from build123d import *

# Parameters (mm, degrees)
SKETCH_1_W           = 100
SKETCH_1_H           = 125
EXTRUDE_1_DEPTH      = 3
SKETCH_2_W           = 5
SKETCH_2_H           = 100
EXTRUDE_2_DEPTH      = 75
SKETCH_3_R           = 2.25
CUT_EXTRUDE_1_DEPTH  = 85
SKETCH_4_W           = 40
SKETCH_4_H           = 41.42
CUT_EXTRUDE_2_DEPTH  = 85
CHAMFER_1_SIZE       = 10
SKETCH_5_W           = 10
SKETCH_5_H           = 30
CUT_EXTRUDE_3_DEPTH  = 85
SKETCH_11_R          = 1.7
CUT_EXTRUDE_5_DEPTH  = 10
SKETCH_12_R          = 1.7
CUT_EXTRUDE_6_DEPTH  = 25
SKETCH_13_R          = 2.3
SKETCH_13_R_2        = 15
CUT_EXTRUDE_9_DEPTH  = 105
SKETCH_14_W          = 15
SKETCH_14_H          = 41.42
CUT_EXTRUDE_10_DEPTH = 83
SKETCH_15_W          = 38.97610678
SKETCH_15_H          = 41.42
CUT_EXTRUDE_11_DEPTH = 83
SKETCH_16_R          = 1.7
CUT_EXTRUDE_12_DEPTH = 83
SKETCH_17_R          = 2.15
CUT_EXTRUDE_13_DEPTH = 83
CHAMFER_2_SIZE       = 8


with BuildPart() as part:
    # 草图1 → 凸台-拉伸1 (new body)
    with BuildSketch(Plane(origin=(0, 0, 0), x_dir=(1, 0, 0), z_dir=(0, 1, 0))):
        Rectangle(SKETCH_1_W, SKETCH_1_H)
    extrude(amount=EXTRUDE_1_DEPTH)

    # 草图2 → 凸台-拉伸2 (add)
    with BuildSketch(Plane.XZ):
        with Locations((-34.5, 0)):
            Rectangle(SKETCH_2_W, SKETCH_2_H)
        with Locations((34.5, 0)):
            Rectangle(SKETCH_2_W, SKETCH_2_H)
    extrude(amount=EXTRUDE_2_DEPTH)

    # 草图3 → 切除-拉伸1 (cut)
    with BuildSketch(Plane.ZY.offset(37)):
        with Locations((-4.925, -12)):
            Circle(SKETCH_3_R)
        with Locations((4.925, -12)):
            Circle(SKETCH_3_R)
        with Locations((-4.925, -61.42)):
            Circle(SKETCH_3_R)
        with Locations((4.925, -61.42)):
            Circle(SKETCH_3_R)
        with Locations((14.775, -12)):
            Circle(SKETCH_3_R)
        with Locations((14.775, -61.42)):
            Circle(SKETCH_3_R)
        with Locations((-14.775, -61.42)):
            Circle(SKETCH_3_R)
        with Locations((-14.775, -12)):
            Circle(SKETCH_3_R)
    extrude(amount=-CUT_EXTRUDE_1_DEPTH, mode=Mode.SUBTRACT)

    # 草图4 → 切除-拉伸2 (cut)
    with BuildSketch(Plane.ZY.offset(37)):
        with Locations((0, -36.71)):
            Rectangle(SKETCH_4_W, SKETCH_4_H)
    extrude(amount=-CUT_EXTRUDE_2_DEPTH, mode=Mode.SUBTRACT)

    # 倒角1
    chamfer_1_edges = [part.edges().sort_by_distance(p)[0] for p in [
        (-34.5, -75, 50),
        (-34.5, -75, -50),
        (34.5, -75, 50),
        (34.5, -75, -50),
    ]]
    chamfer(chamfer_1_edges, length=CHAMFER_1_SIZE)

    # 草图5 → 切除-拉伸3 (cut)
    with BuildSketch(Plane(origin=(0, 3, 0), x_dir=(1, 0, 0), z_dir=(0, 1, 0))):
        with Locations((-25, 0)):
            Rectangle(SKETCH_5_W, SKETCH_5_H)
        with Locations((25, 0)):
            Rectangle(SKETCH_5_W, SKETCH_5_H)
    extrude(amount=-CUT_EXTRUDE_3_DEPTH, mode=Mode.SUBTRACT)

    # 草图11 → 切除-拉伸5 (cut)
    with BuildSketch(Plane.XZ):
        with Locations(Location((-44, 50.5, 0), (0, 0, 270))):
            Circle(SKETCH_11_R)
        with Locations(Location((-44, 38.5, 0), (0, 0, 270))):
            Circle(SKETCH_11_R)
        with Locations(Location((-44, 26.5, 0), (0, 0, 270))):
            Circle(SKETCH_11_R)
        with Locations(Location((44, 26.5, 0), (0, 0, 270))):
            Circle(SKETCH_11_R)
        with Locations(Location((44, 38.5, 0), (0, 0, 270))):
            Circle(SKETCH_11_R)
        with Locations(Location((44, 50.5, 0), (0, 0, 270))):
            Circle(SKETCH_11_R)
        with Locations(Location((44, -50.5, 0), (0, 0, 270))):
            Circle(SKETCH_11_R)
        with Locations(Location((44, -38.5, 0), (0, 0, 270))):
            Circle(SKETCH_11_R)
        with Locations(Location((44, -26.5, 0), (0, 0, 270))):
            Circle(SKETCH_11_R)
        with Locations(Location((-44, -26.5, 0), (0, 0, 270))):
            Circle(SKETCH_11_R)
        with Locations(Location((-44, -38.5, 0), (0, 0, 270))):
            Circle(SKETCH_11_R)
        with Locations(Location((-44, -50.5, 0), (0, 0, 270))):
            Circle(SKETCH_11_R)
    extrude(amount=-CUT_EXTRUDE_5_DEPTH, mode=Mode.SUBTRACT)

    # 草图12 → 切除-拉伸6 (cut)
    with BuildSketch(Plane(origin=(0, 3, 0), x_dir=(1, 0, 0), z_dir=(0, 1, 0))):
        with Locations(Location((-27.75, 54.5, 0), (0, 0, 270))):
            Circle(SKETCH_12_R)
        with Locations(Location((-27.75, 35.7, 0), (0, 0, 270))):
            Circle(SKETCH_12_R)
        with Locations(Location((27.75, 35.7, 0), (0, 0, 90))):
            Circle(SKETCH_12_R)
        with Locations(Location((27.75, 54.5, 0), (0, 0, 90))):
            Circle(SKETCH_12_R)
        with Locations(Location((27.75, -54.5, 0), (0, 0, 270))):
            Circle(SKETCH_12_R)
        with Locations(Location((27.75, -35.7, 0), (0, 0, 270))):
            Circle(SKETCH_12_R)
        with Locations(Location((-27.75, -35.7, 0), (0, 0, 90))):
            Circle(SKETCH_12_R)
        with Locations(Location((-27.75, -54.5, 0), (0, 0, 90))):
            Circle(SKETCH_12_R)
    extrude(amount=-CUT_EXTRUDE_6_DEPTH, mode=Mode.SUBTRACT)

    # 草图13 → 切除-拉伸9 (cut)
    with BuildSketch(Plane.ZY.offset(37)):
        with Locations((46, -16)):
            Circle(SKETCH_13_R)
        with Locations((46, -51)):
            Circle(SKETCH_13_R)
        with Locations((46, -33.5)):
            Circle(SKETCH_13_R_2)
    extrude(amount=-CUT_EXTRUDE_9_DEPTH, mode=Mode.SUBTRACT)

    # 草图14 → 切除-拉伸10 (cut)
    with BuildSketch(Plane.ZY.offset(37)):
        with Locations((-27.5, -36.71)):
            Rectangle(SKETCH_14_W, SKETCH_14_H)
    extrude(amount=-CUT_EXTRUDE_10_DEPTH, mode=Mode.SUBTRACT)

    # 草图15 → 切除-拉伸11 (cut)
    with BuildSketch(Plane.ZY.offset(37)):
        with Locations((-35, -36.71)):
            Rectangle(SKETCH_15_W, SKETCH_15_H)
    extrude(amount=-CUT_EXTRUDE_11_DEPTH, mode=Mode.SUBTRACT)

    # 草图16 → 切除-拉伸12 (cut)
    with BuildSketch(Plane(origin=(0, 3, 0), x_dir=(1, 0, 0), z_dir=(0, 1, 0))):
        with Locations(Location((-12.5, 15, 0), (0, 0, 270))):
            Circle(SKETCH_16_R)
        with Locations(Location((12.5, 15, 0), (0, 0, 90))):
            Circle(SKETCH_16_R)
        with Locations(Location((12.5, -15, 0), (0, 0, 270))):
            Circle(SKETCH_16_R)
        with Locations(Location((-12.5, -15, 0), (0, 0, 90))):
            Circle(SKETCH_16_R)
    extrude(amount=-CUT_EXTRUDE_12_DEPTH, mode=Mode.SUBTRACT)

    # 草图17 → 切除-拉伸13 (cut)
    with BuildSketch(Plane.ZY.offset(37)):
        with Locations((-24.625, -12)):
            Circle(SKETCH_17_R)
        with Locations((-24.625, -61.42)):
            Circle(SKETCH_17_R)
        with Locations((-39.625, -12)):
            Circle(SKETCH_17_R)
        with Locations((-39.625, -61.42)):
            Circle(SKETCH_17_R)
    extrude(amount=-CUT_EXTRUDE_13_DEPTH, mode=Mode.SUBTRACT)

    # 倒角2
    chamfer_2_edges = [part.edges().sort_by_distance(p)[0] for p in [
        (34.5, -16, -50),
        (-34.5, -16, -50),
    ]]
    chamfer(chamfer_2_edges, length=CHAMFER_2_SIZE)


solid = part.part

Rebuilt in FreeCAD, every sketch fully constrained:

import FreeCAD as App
import Part
import Sketcher

V = App.Vector
Q = App.Units.Quantity


def edges_at(feature, points):
    """Names of the edges that pass closest to the given points."""
    edges = feature.Shape.Edges
    near = lambda p: min(range(len(edges)), key=lambda i: edges[i].distToShape(Part.Vertex(*p))[0])
    return sorted({f"Edge{near(p) + 1}" for p in points})

doc = App.newDocument("Part")
params = doc.addObject("Spreadsheet::Sheet", "Params")
for row, (alias, value) in enumerate([
    ("sketch1_width", "100 mm"),
    ("sketch1_height", "125 mm"),
    ("pad1_length", "3 mm"),
    ("sketch2_width", "5 mm"),
    ("sketch2_height", "100 mm"),
    ("pad2_length", "75 mm"),
    ("sketch3_diameter", "4.5 mm"),
    ("pocket1_length", "85 mm"),
    ("sketch4_height", "40 mm"),
    ("sketch4_width", "41.42 mm"),
    ("pocket2_length", "85 mm"),
    ("chamfer_size", "10 mm"),
    ("sketch5_width", "10 mm"),
    ("sketch5_height", "30 mm"),
    ("pocket3_length", "85 mm"),
    ("sketch6_diameter", "3.4 mm"),
    ("pocket4_length", "10 mm"),
    ("sketch7_diameter", "3.4 mm"),
    ("pocket5_length", "25 mm"),
    ("sketch8_diameter", "30 mm"),
    ("sketch8_diameter2", "4.6 mm"),
    ("pocket6_length", "105 mm"),
    ("sketch9_height", "15 mm"),
    ("sketch9_width", "41.42 mm"),
    ("pocket7_length", "83 mm"),
    ("sketch10_width", "41.42 mm"),
    ("pocket8_length", "83 mm"),
    ("sketch11_diameter", "3.4 mm"),
    ("pocket9_length", "83 mm"),
    ("sketch12_diameter", "4.3 mm"),
    ("pocket10_length", "83 mm"),
    ("chamfer2_size", "8 mm"),
], start=1):
    params.set(f"A{row}", alias)
    params.set(f"B{row}", "=" + value)
    params.setAlias(f"B{row}", alias)

body = doc.addObject("PartDesign::Body", "Body")

# Sketch on XZ plane
sketch1 = body.newObject("Sketcher::SketchObject", "Sketch")
sketch1.AttachmentSupport = (doc.getObject("XZ_Plane"), [""])
sketch1.MapMode = "FlatFace"
sketch1.addGeometry([
    Part.LineSegment(V(-50, -62, 0), V(-50, 62, 0)),
    Part.LineSegment(V(-50, 62, 0), V(50, 62, 0)),
    Part.LineSegment(V(50, 62, 0), V(50, -62, 0)),
    Part.LineSegment(V(50, -62, 0), V(-50, -62, 0)),
], False)
sketch1.addConstraint([
    Sketcher.Constraint("Coincident", 0, 2, 1, 1),
    Sketcher.Constraint("Coincident", 1, 2, 2, 1),
    Sketcher.Constraint("Coincident", 2, 2, 3, 1),
    Sketcher.Constraint("Coincident", 3, 2, 0, 1),
    Sketcher.Constraint("Vertical", 0),
    Sketcher.Constraint("Horizontal", 1),
    Sketcher.Constraint("Vertical", 2),
    Sketcher.Constraint("Horizontal", 3),
    Sketcher.Constraint("Symmetric", 0, 2, 2, 2, -1, 1),
    Sketcher.Constraint("DistanceX", 1, 1, 1, 2, Q("100 mm")),
    Sketcher.Constraint("DistanceY", 0, 1, 0, 2, Q("125 mm")),
])
sketch1.setExpression("Constraints[9]", "Params.sketch1_width")
sketch1.setExpression("Constraints[10]", "Params.sketch1_height")
pad1 = body.newObject("PartDesign::Pad", "Pad")
pad1.Profile = sketch1
pad1.setExpression("Length", "Params.pad1_length")
pad1.Reversed = True

# Sketch on XZ plane
sketch2 = body.newObject("Sketcher::SketchObject", "Sketch001")
sketch2.AttachmentSupport = (doc.getObject("XZ_Plane"), [""])
sketch2.MapMode = "FlatFace"
sketch2.addGeometry([
    Part.LineSegment(V(-37, 50, 0), V(-37, -50, 0)),  # 0
    Part.LineSegment(V(-37, -50, 0), V(-32, -50, 0)),  # 1
    Part.LineSegment(V(-32, -50, 0), V(-32, 50, 0)),  # 2
    Part.LineSegment(V(-32, 50, 0), V(-37, 50, 0)),  # 3
    Part.LineSegment(V(32, 50, 0), V(32, -50, 0)),  # 4
    Part.LineSegment(V(32, -50, 0), V(37, -50, 0)),  # 5
    Part.LineSegment(V(37, -50, 0), V(37, 50, 0)),  # 6
    Part.LineSegment(V(37, 50, 0), V(32, 50, 0)),  # 7
], False)
sketch2.addConstraint([
    Sketcher.Constraint("Coincident", 0, 2, 1, 1),
    Sketcher.Constraint("Coincident", 1, 2, 2, 1),
    Sketcher.Constraint("Coincident", 2, 2, 3, 1),
    Sketcher.Constraint("Coincident", 3, 2, 0, 1),
    Sketcher.Constraint("Coincident", 4, 2, 5, 1),
    Sketcher.Constraint("Coincident", 5, 2, 6, 1),
    Sketcher.Constraint("Coincident", 6, 2, 7, 1),
    Sketcher.Constraint("Coincident", 7, 2, 4, 1),
    Sketcher.Constraint("Vertical", 0),
    Sketcher.Constraint("Horizontal", 1),
    Sketcher.Constraint("Vertical", 2),
    Sketcher.Constraint("Horizontal", 3),
    Sketcher.Constraint("Vertical", 4),
    Sketcher.Constraint("Horizontal", 5),
    Sketcher.Constraint("Vertical", 6),
    Sketcher.Constraint("Horizontal", 7),
    Sketcher.Constraint("Symmetric", 2, 2, 4, 2, -1, 1),
    Sketcher.Constraint("Symmetric", 0, 2, 6, 2, -1, 1),
    Sketcher.Constraint("Horizontal", 1, 2, 4, 2),
    Sketcher.Constraint("DistanceX", 1, 1, 1, 2, Q("5 mm")),
    Sketcher.Constraint("DistanceY", 0, 2, 0, 1, Q("100 mm")),
    Sketcher.Constraint("DistanceX", 0, 2, -1, 1, Q("37 mm")),
])
sketch2.setExpression("Constraints[19]", "Params.sketch2_width")
sketch2.setExpression("Constraints[20]", "Params.sketch2_height")
pad2 = body.newObject("PartDesign::Pad", "Pad001")
pad2.Profile = sketch2
pad2.setExpression("Length", "Params.pad2_length")

# Sketch on YZ plane
sketch3 = body.newObject("Sketcher::SketchObject", "Sketch002")
sketch3.AttachmentSupport = (doc.getObject("YZ_Plane"), [""])
sketch3.MapMode = "FlatFace"
sketch3.AttachmentOffset = App.Placement(V(0, 0, -37), App.Rotation())
sketch3.addGeometry([
    Part.Circle(V(-12, -4.9, 0), V(0, 0, 1), 2.2),  # 0
    Part.Circle(V(-12, 4.9, 0), V(0, 0, 1), 2.2),  # 1
    Part.Circle(V(-61.4, -4.9, 0), V(0, 0, 1), 2.2),  # 2
    Part.Circle(V(-61.4, 4.9, 0), V(0, 0, 1), 2.2),  # 3
    Part.Circle(V(-12, 14.8, 0), V(0, 0, 1), 2.2),  # 4
    Part.Circle(V(-61.4, 14.8, 0), V(0, 0, 1), 2.2),  # 5
    Part.Circle(V(-61.4, -14.8, 0), V(0, 0, 1), 2.2),  # 6
    Part.Circle(V(-12, -14.8, 0), V(0, 0, 1), 2.2),  # 7
], False)
sketch3.addConstraint([
    Sketcher.Constraint("Equal", 0, 1),
    Sketcher.Constraint("Equal", 1, 2),
    Sketcher.Constraint("Equal", 2, 3),
    Sketcher.Constraint("Equal", 3, 4),
    Sketcher.Constraint("Equal", 4, 5),
    Sketcher.Constraint("Equal", 5, 6),
    Sketcher.Constraint("Equal", 6, 7),
    Sketcher.Constraint("Symmetric", 0, 3, 1, 3, -1),
    Sketcher.Constraint("Symmetric", 2, 3, 3, 3, -1),
    Sketcher.Constraint("Symmetric", 5, 3, 6, 3, -1),
    Sketcher.Constraint("Symmetric", 4, 3, 7, 3, -1),
    Sketcher.Constraint("Horizontal", 0, 3, 2, 3),
    Sketcher.Constraint("Horizontal", 4, 3, 5, 3),
    Sketcher.Constraint("Vertical", 1, 3, 4, 3),
    Sketcher.Constraint("Vertical", 3, 3, 5, 3),
    Sketcher.Constraint("Diameter", 0, Q("4.5 mm")),
    Sketcher.Constraint("DistanceX", 0, 3, -1, 1, Q("12 mm")),
    Sketcher.Constraint("DistanceY", 0, 3, 4, 3, Q("19.7 mm")),
    Sketcher.Constraint("DistanceX", 2, 3, -1, 1, Q("61.42 mm")),
    Sketcher.Constraint("DistanceY", 0, 3, 1, 3, Q("9.85 mm")),
])
sketch3.setExpression("Constraints[15]", "Params.sketch3_diameter")
pocket1 = body.newObject("PartDesign::Pocket", "Pocket")
pocket1.Profile = sketch3
pocket1.setExpression("Length", "Params.pocket1_length")
pocket1.Reversed = True

# Sketch on YZ plane
sketch4 = body.newObject("Sketcher::SketchObject", "Sketch003")
sketch4.AttachmentSupport = (doc.getObject("YZ_Plane"), [""])
sketch4.MapMode = "FlatFace"
sketch4.AttachmentOffset = App.Placement(V(0, 0, -37), App.Rotation())
sketch4.addGeometry([
    Part.LineSegment(V(-16, -20, 0), V(-57, -20, 0)),
    Part.LineSegment(V(-57, -20, 0), V(-57, 20, 0)),
    Part.LineSegment(V(-57, 20, 0), V(-16, 20, 0)),
    Part.LineSegment(V(-16, 20, 0), V(-16, -20, 0)),
], False)
sketch4.addConstraint([
    Sketcher.Constraint("Coincident", 0, 2, 1, 1),
    Sketcher.Constraint("Coincident", 1, 2, 2, 1),
    Sketcher.Constraint("Coincident", 2, 2, 3, 1),
    Sketcher.Constraint("Coincident", 3, 2, 0, 1),
    Sketcher.Constraint("Horizontal", 0),
    Sketcher.Constraint("Vertical", 1),
    Sketcher.Constraint("Horizontal", 2),
    Sketcher.Constraint("Vertical", 3),
    Sketcher.Constraint("DistanceY", 1, 1, 1, 2, Q("40 mm")),
    Sketcher.Constraint("DistanceY", 0, 2, -1, 1, Q("20 mm")),
    Sketcher.Constraint("DistanceX", 2, 2, -1, 1, Q("16 mm")),
    Sketcher.Constraint("DistanceX", 0, 2, 0, 1, Q("41.42 mm")),
])
sketch4.setExpression("Constraints[8]", "Params.sketch4_height")
sketch4.setExpression("Constraints[11]", "Params.sketch4_width")
pocket2 = body.newObject("PartDesign::Pocket", "Pocket001")
pocket2.Profile = sketch4
pocket2.setExpression("Length", "Params.pocket2_length")
pocket2.Reversed = True
doc.recompute()

chamfer = body.newObject("PartDesign::Chamfer", "Chamfer")
chamfer.Base = (pocket2, edges_at(pocket2, [
    (-34.5, -75, 50),
    (-34.5, -75, -50),
    (34.5, -75, 50),
    (34.5, -75, -50),
]))
chamfer.setExpression("Size", "Params.chamfer_size")

# Sketch on XZ plane
sketch5 = body.newObject("Sketcher::SketchObject", "Sketch004")
sketch5.AttachmentSupport = (doc.getObject("XZ_Plane"), [""])
sketch5.MapMode = "FlatFace"
sketch5.AttachmentOffset = App.Placement(V(0, 0, -3), App.Rotation())
sketch5.addGeometry([
    Part.LineSegment(V(-30, -15, 0), V(-30, 15, 0)),  # 0
    Part.LineSegment(V(-30, 15, 0), V(-20, 15, 0)),  # 1
    Part.LineSegment(V(-20, 15, 0), V(-20, -15, 0)),  # 2
    Part.LineSegment(V(-20, -15, 0), V(-30, -15, 0)),  # 3
    Part.LineSegment(V(20, -15, 0), V(20, 15, 0)),  # 4
    Part.LineSegment(V(20, 15, 0), V(30, 15, 0)),  # 5
    Part.LineSegment(V(30, 15, 0), V(30, -15, 0)),  # 6
    Part.LineSegment(V(30, -15, 0), V(20, -15, 0)),  # 7
], False)
sketch5.addConstraint([
    Sketcher.Constraint("Coincident", 0, 2, 1, 1),
    Sketcher.Constraint("Coincident", 1, 2, 2, 1),
    Sketcher.Constraint("Coincident", 2, 2, 3, 1),
    Sketcher.Constraint("Coincident", 3, 2, 0, 1),
    Sketcher.Constraint("Coincident", 4, 2, 5, 1),
    Sketcher.Constraint("Coincident", 5, 2, 6, 1),
    Sketcher.Constraint("Coincident", 6, 2, 7, 1),
    Sketcher.Constraint("Coincident", 7, 2, 4, 1),
    Sketcher.Constraint("Vertical", 0),
    Sketcher.Constraint("Horizontal", 1),
    Sketcher.Constraint("Vertical", 2),
    Sketcher.Constraint("Horizontal", 3),
    Sketcher.Constraint("Vertical", 4),
    Sketcher.Constraint("Horizontal", 5),
    Sketcher.Constraint("Vertical", 6),
    Sketcher.Constraint("Horizontal", 7),
    Sketcher.Constraint("Symmetric", 2, 2, 4, 2, -1, 1),
    Sketcher.Constraint("Symmetric", 0, 2, 6, 2, -1, 1),
    Sketcher.Constraint("Horizontal", 1, 2, 4, 2),
    Sketcher.Constraint("DistanceX", 1, 1, 1, 2, Q("10 mm")),
    Sketcher.Constraint("DistanceY", 0, 1, 0, 2, Q("30 mm")),
    Sketcher.Constraint("DistanceX", 0, 2, -1, 1, Q("30 mm")),
])
sketch5.setExpression("Constraints[19]", "Params.sketch5_width")
sketch5.setExpression("Constraints[20]", "Params.sketch5_height")
pocket3 = body.newObject("PartDesign::Pocket", "Pocket002")
pocket3.Profile = sketch5
pocket3.setExpression("Length", "Params.pocket3_length")
pocket3.Reversed = True

# Sketch on XZ plane
sketch6 = body.newObject("Sketcher::SketchObject", "Sketch005")
sketch6.AttachmentSupport = (doc.getObject("XZ_Plane"), [""])
sketch6.MapMode = "FlatFace"
sketch6.addGeometry([
    Part.Circle(V(-44, 50.5, 0), V(0, 0, 1), 1.7),  # 0
    Part.Circle(V(-44, 38.5, 0), V(0, 0, 1), 1.7),  # 1
    Part.Circle(V(-44, 26.5, 0), V(0, 0, 1), 1.7),  # 2
    Part.Circle(V(44, 26.5, 0), V(0, 0, 1), 1.7),  # 3
    Part.Circle(V(44, 38.5, 0), V(0, 0, 1), 1.7),  # 4
    Part.Circle(V(44, 50.5, 0), V(0, 0, 1), 1.7),  # 5
    Part.Circle(V(44, -50.5, 0), V(0, 0, 1), 1.7),  # 6
    Part.Circle(V(44, -38.5, 0), V(0, 0, 1), 1.7),  # 7
    Part.Circle(V(44, -26.5, 0), V(0, 0, 1), 1.7),  # 8
    Part.Circle(V(-44, -26.5, 0), V(0, 0, 1), 1.7),  # 9
    Part.Circle(V(-44, -38.5, 0), V(0, 0, 1), 1.7),  # 10
    Part.Circle(V(-44, -50.5, 0), V(0, 0, 1), 1.7),  # 11
], False)
sketch6.addConstraint([
    Sketcher.Constraint("Equal", 0, 1),
    Sketcher.Constraint("Equal", 1, 2),
    Sketcher.Constraint("Equal", 2, 3),
    Sketcher.Constraint("Equal", 3, 4),
    Sketcher.Constraint("Equal", 4, 5),
    Sketcher.Constraint("Equal", 5, 6),
    Sketcher.Constraint("Equal", 6, 7),
    Sketcher.Constraint("Equal", 7, 8),
    Sketcher.Constraint("Equal", 8, 9),
    Sketcher.Constraint("Equal", 9, 10),
    Sketcher.Constraint("Equal", 10, 11),
    Sketcher.Constraint("Symmetric", 0, 3, 6, 3, -1, 1),
    Sketcher.Constraint("Symmetric", 1, 3, 7, 3, -1, 1),
    Sketcher.Constraint("Symmetric", 2, 3, 8, 3, -1, 1),
    Sketcher.Constraint("Symmetric", 3, 3, 9, 3, -1, 1),
    Sketcher.Constraint("Symmetric", 4, 3, 10, 3, -1, 1),
    Sketcher.Constraint("Symmetric", 5, 3, 11, 3, -1, 1),
    Sketcher.Constraint("Symmetric", 2, 3, 3, 3, -2),
    Sketcher.Constraint("Symmetric", 1, 3, 4, 3, -2),
    Sketcher.Constraint("Symmetric", 0, 3, 5, 3, -2),
    Sketcher.Constraint("Vertical", 0, 3, 1, 3),
    Sketcher.Constraint("Vertical", 1, 3, 2, 3),
    Sketcher.Constraint("Diameter", 0, Q("3.4 mm")),
    Sketcher.Constraint("DistanceX", 0, 3, -1, 1, Q("44 mm")),
    Sketcher.Constraint("DistanceY", 1, 3, 0, 3, Q("12 mm")),
    Sketcher.Constraint("DistanceY", 2, 3, 1, 3, Q("12 mm")),
    Sketcher.Constraint("DistanceY", 6, 3, 3, 3, Q("77 mm")),
])
sketch6.setExpression("Constraints[22]", "Params.sketch6_diameter")
pocket4 = body.newObject("PartDesign::Pocket", "Pocket003")
pocket4.Profile = sketch6
pocket4.setExpression("Length", "Params.pocket4_length")

# Sketch on XZ plane
sketch7 = body.newObject("Sketcher::SketchObject", "Sketch006")
sketch7.AttachmentSupport = (doc.getObject("XZ_Plane"), [""])
sketch7.MapMode = "FlatFace"
sketch7.AttachmentOffset = App.Placement(V(0, 0, -3), App.Rotation())
sketch7.addGeometry([
    Part.Circle(V(-27.8, -54.5, 0), V(0, 0, 1), 1.7),  # 0
    Part.Circle(V(-27.8, -35.7, 0), V(0, 0, 1), 1.7),  # 1
    Part.Circle(V(27.8, -35.7, 0), V(0, 0, 1), 1.7),  # 2
    Part.Circle(V(27.8, -54.5, 0), V(0, 0, 1), 1.7),  # 3
    Part.Circle(V(27.8, 54.5, 0), V(0, 0, 1), 1.7),  # 4
    Part.Circle(V(27.8, 35.7, 0), V(0, 0, 1), 1.7),  # 5
    Part.Circle(V(-27.8, 35.7, 0), V(0, 0, 1), 1.7),  # 6
    Part.Circle(V(-27.8, 54.5, 0), V(0, 0, 1), 1.7),  # 7
], False)
sketch7.addConstraint([
    Sketcher.Constraint("Equal", 0, 1),
    Sketcher.Constraint("Equal", 1, 2),
    Sketcher.Constraint("Equal", 2, 3),
    Sketcher.Constraint("Equal", 3, 4),
    Sketcher.Constraint("Equal", 4, 5),
    Sketcher.Constraint("Equal", 5, 6),
    Sketcher.Constraint("Equal", 6, 7),
    Sketcher.Constraint("Symmetric", 0, 3, 4, 3, -1, 1),
    Sketcher.Constraint("Symmetric", 1, 3, 5, 3, -1, 1),
    Sketcher.Constraint("Symmetric", 2, 3, 6, 3, -1, 1),
    Sketcher.Constraint("Symmetric", 3, 3, 7, 3, -1, 1),
    Sketcher.Constraint("Symmetric", 1, 3, 2, 3, -2),
    Sketcher.Constraint("Symmetric", 0, 3, 3, 3, -2),
    Sketcher.Constraint("Vertical", 0, 3, 1, 3),
    Sketcher.Constraint("Diameter", 0, Q("3.4 mm")),
    Sketcher.Constraint("DistanceY", 3, 3, 4, 3, Q("109 mm")),
    Sketcher.Constraint("DistanceY", 1, 3, -1, 1, Q("35.7 mm")),
    Sketcher.Constraint("DistanceX", 1, 3, 2, 3, Q("55.5 mm")),
])
sketch7.setExpression("Constraints[14]", "Params.sketch7_diameter")
pocket5 = body.newObject("PartDesign::Pocket", "Pocket004")
pocket5.Profile = sketch7
pocket5.setExpression("Length", "Params.pocket5_length")
pocket5.Reversed = True

# Sketch on YZ plane
sketch8 = body.newObject("Sketcher::SketchObject", "Sketch007")
sketch8.AttachmentSupport = (doc.getObject("YZ_Plane"), [""])
sketch8.MapMode = "FlatFace"
sketch8.AttachmentOffset = App.Placement(V(0, 0, -37), App.Rotation())
sketch8.addGeometry([
    Part.Circle(V(-16, 46, 0), V(0, 0, 1), 2.3),
    Part.Circle(V(-51, 46, 0), V(0, 0, 1), 2.3),
    Part.Circle(V(-33.5, 46, 0), V(0, 0, 1), 15),
], False)
sketch8.addConstraint([
    Sketcher.Constraint("Equal", 0, 1),
    Sketcher.Constraint("Horizontal", 0, 3, 1, 3),
    Sketcher.Constraint("Horizontal", 1, 3, 2, 3),
    Sketcher.Constraint("Diameter", 2, Q("30 mm")),
    Sketcher.Constraint("Diameter", 0, Q("4.6 mm")),
    Sketcher.Constraint("DistanceX", 0, 3, -1, 1, Q("16 mm")),
    Sketcher.Constraint("DistanceY", -1, 1, 0, 3, Q("46 mm")),
    Sketcher.Constraint("DistanceX", 1, 3, -1, 1, Q("51 mm")),
    Sketcher.Constraint("DistanceX", 2, 3, -1, 1, Q("33.5 mm")),
])
sketch8.setExpression("Constraints[3]", "Params.sketch8_diameter")
sketch8.setExpression("Constraints[4]", "Params.sketch8_diameter2")
pocket6 = body.newObject("PartDesign::Pocket", "Pocket005")
pocket6.Profile = sketch8
pocket6.setExpression("Length", "Params.pocket6_length")
pocket6.Reversed = True

# Sketch on YZ plane
sketch9 = body.newObject("Sketcher::SketchObject", "Sketch008")
sketch9.AttachmentSupport = (doc.getObject("YZ_Plane"), [""])
sketch9.MapMode = "FlatFace"
sketch9.AttachmentOffset = App.Placement(V(0, 0, -37), App.Rotation())
sketch9.addGeometry([
    Part.LineSegment(V(-16, -35, 0), V(-57, -35, 0)),
    Part.LineSegment(V(-57, -35, 0), V(-57, -20, 0)),
    Part.LineSegment(V(-57, -20, 0), V(-16, -20, 0)),
    Part.LineSegment(V(-16, -20, 0), V(-16, -35, 0)),
], False)
sketch9.addConstraint([
    Sketcher.Constraint("Coincident", 0, 2, 1, 1),
    Sketcher.Constraint("Coincident", 1, 2, 2, 1),
    Sketcher.Constraint("Coincident", 2, 2, 3, 1),
    Sketcher.Constraint("Coincident", 3, 2, 0, 1),
    Sketcher.Constraint("Horizontal", 0),
    Sketcher.Constraint("Vertical", 1),
    Sketcher.Constraint("Horizontal", 2),
    Sketcher.Constraint("Vertical", 3),
    Sketcher.Constraint("DistanceY", 1, 1, 1, 2, Q("15 mm")),
    Sketcher.Constraint("DistanceY", 0, 2, -1, 1, Q("35 mm")),
    Sketcher.Constraint("DistanceX", 2, 2, -1, 1, Q("16 mm")),
    Sketcher.Constraint("DistanceX", 0, 2, 0, 1, Q("41.42 mm")),
])
sketch9.setExpression("Constraints[8]", "Params.sketch9_height")
sketch9.setExpression("Constraints[11]", "Params.sketch9_width")
pocket7 = body.newObject("PartDesign::Pocket", "Pocket006")
pocket7.Profile = sketch9
pocket7.setExpression("Length", "Params.pocket7_length")
pocket7.Reversed = True

# Sketch on YZ plane
sketch10 = body.newObject("Sketcher::SketchObject", "Sketch009")
sketch10.AttachmentSupport = (doc.getObject("YZ_Plane"), [""])
sketch10.MapMode = "FlatFace"
sketch10.AttachmentOffset = App.Placement(V(0, 0, -37), App.Rotation())
sketch10.addGeometry([
    Part.LineSegment(V(-16, -54, 0), V(-57, -54, 0)),
    Part.LineSegment(V(-57, -54, 0), V(-57, -16, 0)),
    Part.LineSegment(V(-57, -16, 0), V(-16, -16, 0)),
    Part.LineSegment(V(-16, -16, 0), V(-16, -54, 0)),
], False)
sketch10.addConstraint([
    Sketcher.Constraint("Coincident", 0, 2, 1, 1),
    Sketcher.Constraint("Coincident", 1, 2, 2, 1),
    Sketcher.Constraint("Coincident", 2, 2, 3, 1),
    Sketcher.Constraint("Coincident", 3, 2, 0, 1),
    Sketcher.Constraint("Horizontal", 0),
    Sketcher.Constraint("Vertical", 1),
    Sketcher.Constraint("Horizontal", 2),
    Sketcher.Constraint("Vertical", 3),
    Sketcher.Constraint("DistanceX", 2, 2, -1, 1, Q("16 mm")),
    Sketcher.Constraint("DistanceX", 0, 2, 0, 1, Q("41.42 mm")),
    Sketcher.Constraint("DistanceY", 1, 1, 1, 2, Q("38.976107 mm")),
    Sketcher.Constraint("DistanceY", 0, 2, -1, 1, Q("54.488053 mm")),
])
sketch10.setExpression("Constraints[9]", "Params.sketch10_width")
pocket8 = body.newObject("PartDesign::Pocket", "Pocket007")
pocket8.Profile = sketch10
pocket8.setExpression("Length", "Params.pocket8_length")
pocket8.Reversed = True

# Sketch on XZ plane
sketch11 = body.newObject("Sketcher::SketchObject", "Sketch010")
sketch11.AttachmentSupport = (doc.getObject("XZ_Plane"), [""])
sketch11.MapMode = "FlatFace"
sketch11.AttachmentOffset = App.Placement(V(0, 0, -3), App.Rotation())
sketch11.addGeometry([
    Part.Circle(V(-12.5, -15, 0), V(0, 0, 1), 1.7),
    Part.Circle(V(12.5, -15, 0), V(0, 0, 1), 1.7),
    Part.Circle(V(12.5, 15, 0), V(0, 0, 1), 1.7),
    Part.Circle(V(-12.5, 15, 0), V(0, 0, 1), 1.7),
], False)
sketch11.addConstraint([
    Sketcher.Constraint("Equal", 0, 1),
    Sketcher.Constraint("Equal", 1, 2),
    Sketcher.Constraint("Equal", 2, 3),
    Sketcher.Constraint("Symmetric", 0, 3, 2, 3, -1, 1),
    Sketcher.Constraint("Symmetric", 1, 3, 3, 3, -1, 1),
    Sketcher.Constraint("Symmetric", 0, 3, 1, 3, -2),
    Sketcher.Constraint("Diameter", 0, Q("3.4 mm")),
    Sketcher.Constraint("DistanceY", 0, 3, -1, 1, Q("15 mm")),
    Sketcher.Constraint("DistanceX", 0, 3, 1, 3, Q("25 mm")),
])
sketch11.setExpression("Constraints[6]", "Params.sketch11_diameter")
pocket9 = body.newObject("PartDesign::Pocket", "Pocket008")
pocket9.Profile = sketch11
pocket9.setExpression("Length", "Params.pocket9_length")
pocket9.Reversed = True

# Sketch on YZ plane
sketch12 = body.newObject("Sketcher::SketchObject", "Sketch011")
sketch12.AttachmentSupport = (doc.getObject("YZ_Plane"), [""])
sketch12.MapMode = "FlatFace"
sketch12.AttachmentOffset = App.Placement(V(0, 0, -37), App.Rotation())
sketch12.addGeometry([
    Part.Circle(V(-12, -24.6, 0), V(0, 0, 1), 2.1),
    Part.Circle(V(-61.4, -24.6, 0), V(0, 0, 1), 2.1),
    Part.Circle(V(-12, -39.6, 0), V(0, 0, 1), 2.1),
    Part.Circle(V(-61.4, -39.6, 0), V(0, 0, 1), 2.1),
], False)
sketch12.addConstraint([
    Sketcher.Constraint("Equal", 0, 1),
    Sketcher.Constraint("Equal", 1, 2),
    Sketcher.Constraint("Equal", 2, 3),
    Sketcher.Constraint("Horizontal", 0, 3, 1, 3),
    Sketcher.Constraint("Horizontal", 2, 3, 3, 3),
    Sketcher.Constraint("Vertical", 0, 3, 2, 3),
    Sketcher.Constraint("Vertical", 1, 3, 3, 3),
    Sketcher.Constraint("Diameter", 0, Q("4.3 mm")),
    Sketcher.Constraint("DistanceX", 0, 3, -1, 1, Q("12 mm")),
    Sketcher.Constraint("DistanceY", 2, 3, 0, 3, Q("15 mm")),
    Sketcher.Constraint("DistanceX", 1, 3, -1, 1, Q("61.42 mm")),
    Sketcher.Constraint("DistanceY", 0, 3, -1, 1, Q("24.625 mm")),
])
sketch12.setExpression("Constraints[7]", "Params.sketch12_diameter")
pocket10 = body.newObject("PartDesign::Pocket", "Pocket009")
pocket10.Profile = sketch12
pocket10.setExpression("Length", "Params.pocket10_length")
pocket10.Reversed = True
doc.recompute()

chamfer2 = body.newObject("PartDesign::Chamfer", "Chamfer001")
chamfer2.Base = (pocket10, edges_at(pocket10, [(34.5, -16, -50), (-34.5, -16, -50)]))
chamfer2.setExpression("Size", "Params.chamfer2_size")

doc.recompute()
